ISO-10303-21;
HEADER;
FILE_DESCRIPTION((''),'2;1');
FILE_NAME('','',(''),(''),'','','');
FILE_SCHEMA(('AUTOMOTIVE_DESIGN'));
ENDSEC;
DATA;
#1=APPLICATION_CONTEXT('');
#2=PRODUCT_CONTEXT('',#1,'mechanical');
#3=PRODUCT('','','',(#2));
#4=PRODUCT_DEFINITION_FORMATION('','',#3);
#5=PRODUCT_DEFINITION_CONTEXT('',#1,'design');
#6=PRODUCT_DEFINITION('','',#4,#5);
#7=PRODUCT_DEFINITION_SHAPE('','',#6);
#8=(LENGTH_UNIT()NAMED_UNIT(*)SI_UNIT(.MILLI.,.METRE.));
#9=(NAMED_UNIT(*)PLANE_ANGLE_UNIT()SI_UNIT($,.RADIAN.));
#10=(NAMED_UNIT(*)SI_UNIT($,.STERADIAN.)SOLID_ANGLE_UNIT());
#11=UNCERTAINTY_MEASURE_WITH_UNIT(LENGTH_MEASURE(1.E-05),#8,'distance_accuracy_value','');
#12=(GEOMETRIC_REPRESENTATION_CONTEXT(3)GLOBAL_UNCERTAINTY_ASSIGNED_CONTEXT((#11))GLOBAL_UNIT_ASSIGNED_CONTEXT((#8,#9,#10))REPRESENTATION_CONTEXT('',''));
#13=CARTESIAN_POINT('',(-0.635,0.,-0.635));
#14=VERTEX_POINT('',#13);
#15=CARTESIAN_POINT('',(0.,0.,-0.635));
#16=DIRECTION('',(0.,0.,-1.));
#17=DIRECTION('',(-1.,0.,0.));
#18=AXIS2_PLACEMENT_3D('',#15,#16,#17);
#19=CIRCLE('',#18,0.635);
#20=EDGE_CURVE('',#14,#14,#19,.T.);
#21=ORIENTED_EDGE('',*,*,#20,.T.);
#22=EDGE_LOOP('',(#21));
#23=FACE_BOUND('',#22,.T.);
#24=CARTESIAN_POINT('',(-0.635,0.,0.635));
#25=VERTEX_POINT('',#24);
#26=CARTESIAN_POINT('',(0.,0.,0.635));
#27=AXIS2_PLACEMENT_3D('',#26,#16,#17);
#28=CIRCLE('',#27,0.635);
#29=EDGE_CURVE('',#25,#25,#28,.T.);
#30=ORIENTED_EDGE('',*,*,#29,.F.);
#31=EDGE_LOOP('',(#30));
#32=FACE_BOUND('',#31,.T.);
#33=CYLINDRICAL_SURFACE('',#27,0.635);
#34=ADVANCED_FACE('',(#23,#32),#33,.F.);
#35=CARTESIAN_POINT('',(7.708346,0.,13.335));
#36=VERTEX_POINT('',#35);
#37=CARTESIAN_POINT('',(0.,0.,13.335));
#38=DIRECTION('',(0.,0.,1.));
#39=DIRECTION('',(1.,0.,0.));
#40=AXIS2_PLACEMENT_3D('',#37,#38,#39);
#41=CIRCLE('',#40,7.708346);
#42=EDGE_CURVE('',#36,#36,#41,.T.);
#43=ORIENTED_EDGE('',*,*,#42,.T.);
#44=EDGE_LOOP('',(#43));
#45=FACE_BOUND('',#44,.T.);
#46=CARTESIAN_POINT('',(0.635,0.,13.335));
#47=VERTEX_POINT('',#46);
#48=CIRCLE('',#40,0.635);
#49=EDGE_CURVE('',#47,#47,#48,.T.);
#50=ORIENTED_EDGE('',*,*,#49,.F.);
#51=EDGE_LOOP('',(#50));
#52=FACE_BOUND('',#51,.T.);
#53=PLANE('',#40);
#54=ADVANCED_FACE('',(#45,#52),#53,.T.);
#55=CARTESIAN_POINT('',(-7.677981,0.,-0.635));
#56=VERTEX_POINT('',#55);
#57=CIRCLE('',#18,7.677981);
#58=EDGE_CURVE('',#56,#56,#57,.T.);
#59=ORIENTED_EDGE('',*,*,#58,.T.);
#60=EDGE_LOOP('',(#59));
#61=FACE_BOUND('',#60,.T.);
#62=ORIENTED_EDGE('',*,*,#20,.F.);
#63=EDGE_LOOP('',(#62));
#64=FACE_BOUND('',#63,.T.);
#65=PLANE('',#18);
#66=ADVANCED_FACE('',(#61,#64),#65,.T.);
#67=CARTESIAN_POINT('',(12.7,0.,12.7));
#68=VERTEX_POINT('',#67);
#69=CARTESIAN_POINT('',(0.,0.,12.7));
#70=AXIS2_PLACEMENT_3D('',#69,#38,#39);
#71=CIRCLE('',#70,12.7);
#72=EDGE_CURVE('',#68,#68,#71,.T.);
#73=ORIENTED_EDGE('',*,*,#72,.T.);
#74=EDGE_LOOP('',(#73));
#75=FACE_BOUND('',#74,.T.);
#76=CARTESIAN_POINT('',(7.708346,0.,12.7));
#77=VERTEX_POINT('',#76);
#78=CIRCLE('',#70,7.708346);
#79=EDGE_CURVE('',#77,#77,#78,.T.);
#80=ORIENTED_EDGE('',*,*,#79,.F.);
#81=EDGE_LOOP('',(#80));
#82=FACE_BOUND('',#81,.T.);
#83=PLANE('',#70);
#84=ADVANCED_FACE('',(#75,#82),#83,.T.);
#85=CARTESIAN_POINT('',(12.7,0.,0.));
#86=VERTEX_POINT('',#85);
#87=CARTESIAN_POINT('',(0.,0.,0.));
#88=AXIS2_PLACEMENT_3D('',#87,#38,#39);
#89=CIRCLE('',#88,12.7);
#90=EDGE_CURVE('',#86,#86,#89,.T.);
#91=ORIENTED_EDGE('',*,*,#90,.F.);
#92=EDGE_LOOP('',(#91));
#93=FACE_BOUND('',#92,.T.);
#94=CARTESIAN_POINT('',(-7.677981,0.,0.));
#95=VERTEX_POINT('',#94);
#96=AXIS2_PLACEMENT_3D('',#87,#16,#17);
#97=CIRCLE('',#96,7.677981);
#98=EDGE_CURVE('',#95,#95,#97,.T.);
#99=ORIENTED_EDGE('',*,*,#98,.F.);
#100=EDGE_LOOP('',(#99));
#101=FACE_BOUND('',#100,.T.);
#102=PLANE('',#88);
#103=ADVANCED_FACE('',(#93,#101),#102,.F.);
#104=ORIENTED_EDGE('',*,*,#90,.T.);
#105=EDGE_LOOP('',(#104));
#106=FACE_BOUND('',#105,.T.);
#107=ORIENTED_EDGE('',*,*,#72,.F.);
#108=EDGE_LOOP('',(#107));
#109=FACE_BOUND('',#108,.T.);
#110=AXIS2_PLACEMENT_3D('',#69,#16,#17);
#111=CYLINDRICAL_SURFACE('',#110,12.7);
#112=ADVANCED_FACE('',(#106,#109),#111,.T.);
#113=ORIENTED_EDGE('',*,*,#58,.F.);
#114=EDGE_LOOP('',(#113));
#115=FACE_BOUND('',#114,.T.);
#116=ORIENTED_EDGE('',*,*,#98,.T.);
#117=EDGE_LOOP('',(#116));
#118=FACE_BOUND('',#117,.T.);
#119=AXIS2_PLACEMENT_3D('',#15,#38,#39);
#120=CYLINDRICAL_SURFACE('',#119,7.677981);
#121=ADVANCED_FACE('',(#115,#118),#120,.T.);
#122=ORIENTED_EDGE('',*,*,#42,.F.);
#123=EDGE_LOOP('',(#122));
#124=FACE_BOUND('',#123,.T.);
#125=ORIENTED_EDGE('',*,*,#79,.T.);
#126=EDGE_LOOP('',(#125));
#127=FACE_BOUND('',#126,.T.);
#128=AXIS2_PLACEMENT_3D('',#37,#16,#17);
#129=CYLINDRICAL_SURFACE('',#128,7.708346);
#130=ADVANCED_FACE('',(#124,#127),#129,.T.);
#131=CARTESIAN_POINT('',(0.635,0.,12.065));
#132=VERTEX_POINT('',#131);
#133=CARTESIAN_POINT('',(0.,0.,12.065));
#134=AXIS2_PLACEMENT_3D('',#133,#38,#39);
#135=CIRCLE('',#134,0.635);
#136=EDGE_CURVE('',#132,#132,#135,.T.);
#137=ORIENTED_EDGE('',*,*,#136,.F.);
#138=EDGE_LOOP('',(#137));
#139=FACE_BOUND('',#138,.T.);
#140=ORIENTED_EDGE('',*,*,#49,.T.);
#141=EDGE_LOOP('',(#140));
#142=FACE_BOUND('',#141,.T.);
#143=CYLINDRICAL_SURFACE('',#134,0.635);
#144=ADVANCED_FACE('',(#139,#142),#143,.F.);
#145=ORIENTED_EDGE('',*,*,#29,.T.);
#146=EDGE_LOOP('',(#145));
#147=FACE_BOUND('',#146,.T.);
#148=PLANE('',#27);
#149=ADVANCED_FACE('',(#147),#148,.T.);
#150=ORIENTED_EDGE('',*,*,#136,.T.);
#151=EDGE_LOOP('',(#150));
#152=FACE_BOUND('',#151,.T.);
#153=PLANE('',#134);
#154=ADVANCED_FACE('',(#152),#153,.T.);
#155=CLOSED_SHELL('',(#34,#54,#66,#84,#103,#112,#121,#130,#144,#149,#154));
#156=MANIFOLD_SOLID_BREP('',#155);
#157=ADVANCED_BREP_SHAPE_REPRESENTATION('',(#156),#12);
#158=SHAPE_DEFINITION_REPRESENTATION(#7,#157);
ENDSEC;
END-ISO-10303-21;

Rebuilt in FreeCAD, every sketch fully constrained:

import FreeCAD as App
import Part
import Sketcher

V = App.Vector
Q = App.Units.Quantity

doc = App.newDocument("Part")
body = doc.addObject("PartDesign::Body", "Body")

# Sketch on XY plane
sketch1 = doc.addObject("Sketcher::SketchObject", "Sketch")
body.addObject(sketch1)
sketch1.AttachmentSupport = (doc.XY_Plane, [""])
sketch1.MapMode = "FlatFace"
sketch1.addGeometry(Part.Circle(V(0, 0, 0), V(0, 0, 1), 13), False)
sketch1.addConstraint(Sketcher.Constraint("Coincident", 0, 3, -1, 1))
sketch1.addConstraint(Sketcher.Constraint("Diameter", 0, Q("1 in")))
pad1 = doc.addObject("PartDesign::Pad", "Pad")
body.addObject(pad1)
pad1.Profile = sketch1
pad1.Length = Q("0.5 in")

# Sketch on XY plane
sketch2 = doc.addObject("Sketcher::SketchObject", "Sketch001")
body.addObject(sketch2)
sketch2.AttachmentSupport = (doc.XY_Plane, [""])
sketch2.MapMode = "FlatFace"
sketch2.AttachmentOffset = App.Placement(V(0, 0, 0.5 * 25.4), App.Rotation())
sketch2.addGeometry(Part.Circle(V(0, 0, 0), V(0, 0, 1), 8), False)
sketch2.addConstraint(Sketcher.Constraint("Coincident", 0, 3, -1, 1))
sketch2.addConstraint(Sketcher.Constraint("Diameter", 0, Q("15.416691 mm")))
pad2 = doc.addObject("PartDesign::Pad", "Pad001")
body.addObject(pad2)
pad2.Profile = sketch2
pad2.Length = Q("0.025 in")

# Sketch on XY plane
sketch3 = doc.addObject("Sketcher::SketchObject", "Sketch002")
body.addObject(sketch3)
sketch3.AttachmentSupport = (doc.XY_Plane, [""])
sketch3.MapMode = "FlatFace"
sketch3.addGeometry(Part.Circle(V(0, 0, 0), V(0, 0, 1), 8), False)
sketch3.addConstraint(Sketcher.Constraint("Coincident", 0, 3, -1, 1))
sketch3.addConstraint(Sketcher.Constraint("Diameter", 0, Q("15.355962 mm")))
pad3 = doc.addObject("PartDesign::Pad", "Pad002")
body.addObject(pad3)
pad3.Profile = sketch3
pad3.Length = Q("0.025 in")
pad3.Reversed = True

# Sketch on XY plane
sketch4 = doc.addObject("Sketcher::SketchObject", "Sketch003")
body.addObject(sketch4)
sketch4.AttachmentSupport = (doc.XY_Plane, [""])
sketch4.MapMode = "FlatFace"
sketch4.AttachmentOffset = App.Placement(V(0, 0, 0.525 * 25.4), App.Rotation())
sketch4.addGeometry(Part.Circle(V(0, 0, 0), V(0, 0, 1), 0.6), False)
sketch4.addConstraint(Sketcher.Constraint("Coincident", 0, 3, -1, 1))
sketch4.addConstraint(Sketcher.Constraint("Diameter", 0, Q("0.05 in")))
pocket1 = doc.addObject("PartDesign::Pocket", "Pocket")
body.addObject(pocket1)
pocket1.Profile = sketch4
pocket1.Length = Q("0.05 in")

# Sketch on XY plane
sketch5 = doc.addObject("Sketcher::SketchObject", "Sketch004")
body.addObject(sketch5)
sketch5.AttachmentSupport = (doc.XY_Plane, [""])
sketch5.MapMode = "FlatFace"
sketch5.AttachmentOffset = App.Placement(V(0, 0, -0.025 * 25.4), App.Rotation())
sketch5.addGeometry(Part.Circle(V(0, 0, 0), V(0, 0, 1), 0.6), False)
sketch5.addConstraint(Sketcher.Constraint("Coincident", 0, 3, -1, 1))
sketch5.addConstraint(Sketcher.Constraint("Diameter", 0, Q("0.05 in")))
pocket2 = doc.addObject("PartDesign::Pocket", "Pocket001")
body.addObject(pocket2)
pocket2.Profile = sketch5
pocket2.Length = Q("0.05 in")
pocket2.Reversed = True

doc.recompute()
